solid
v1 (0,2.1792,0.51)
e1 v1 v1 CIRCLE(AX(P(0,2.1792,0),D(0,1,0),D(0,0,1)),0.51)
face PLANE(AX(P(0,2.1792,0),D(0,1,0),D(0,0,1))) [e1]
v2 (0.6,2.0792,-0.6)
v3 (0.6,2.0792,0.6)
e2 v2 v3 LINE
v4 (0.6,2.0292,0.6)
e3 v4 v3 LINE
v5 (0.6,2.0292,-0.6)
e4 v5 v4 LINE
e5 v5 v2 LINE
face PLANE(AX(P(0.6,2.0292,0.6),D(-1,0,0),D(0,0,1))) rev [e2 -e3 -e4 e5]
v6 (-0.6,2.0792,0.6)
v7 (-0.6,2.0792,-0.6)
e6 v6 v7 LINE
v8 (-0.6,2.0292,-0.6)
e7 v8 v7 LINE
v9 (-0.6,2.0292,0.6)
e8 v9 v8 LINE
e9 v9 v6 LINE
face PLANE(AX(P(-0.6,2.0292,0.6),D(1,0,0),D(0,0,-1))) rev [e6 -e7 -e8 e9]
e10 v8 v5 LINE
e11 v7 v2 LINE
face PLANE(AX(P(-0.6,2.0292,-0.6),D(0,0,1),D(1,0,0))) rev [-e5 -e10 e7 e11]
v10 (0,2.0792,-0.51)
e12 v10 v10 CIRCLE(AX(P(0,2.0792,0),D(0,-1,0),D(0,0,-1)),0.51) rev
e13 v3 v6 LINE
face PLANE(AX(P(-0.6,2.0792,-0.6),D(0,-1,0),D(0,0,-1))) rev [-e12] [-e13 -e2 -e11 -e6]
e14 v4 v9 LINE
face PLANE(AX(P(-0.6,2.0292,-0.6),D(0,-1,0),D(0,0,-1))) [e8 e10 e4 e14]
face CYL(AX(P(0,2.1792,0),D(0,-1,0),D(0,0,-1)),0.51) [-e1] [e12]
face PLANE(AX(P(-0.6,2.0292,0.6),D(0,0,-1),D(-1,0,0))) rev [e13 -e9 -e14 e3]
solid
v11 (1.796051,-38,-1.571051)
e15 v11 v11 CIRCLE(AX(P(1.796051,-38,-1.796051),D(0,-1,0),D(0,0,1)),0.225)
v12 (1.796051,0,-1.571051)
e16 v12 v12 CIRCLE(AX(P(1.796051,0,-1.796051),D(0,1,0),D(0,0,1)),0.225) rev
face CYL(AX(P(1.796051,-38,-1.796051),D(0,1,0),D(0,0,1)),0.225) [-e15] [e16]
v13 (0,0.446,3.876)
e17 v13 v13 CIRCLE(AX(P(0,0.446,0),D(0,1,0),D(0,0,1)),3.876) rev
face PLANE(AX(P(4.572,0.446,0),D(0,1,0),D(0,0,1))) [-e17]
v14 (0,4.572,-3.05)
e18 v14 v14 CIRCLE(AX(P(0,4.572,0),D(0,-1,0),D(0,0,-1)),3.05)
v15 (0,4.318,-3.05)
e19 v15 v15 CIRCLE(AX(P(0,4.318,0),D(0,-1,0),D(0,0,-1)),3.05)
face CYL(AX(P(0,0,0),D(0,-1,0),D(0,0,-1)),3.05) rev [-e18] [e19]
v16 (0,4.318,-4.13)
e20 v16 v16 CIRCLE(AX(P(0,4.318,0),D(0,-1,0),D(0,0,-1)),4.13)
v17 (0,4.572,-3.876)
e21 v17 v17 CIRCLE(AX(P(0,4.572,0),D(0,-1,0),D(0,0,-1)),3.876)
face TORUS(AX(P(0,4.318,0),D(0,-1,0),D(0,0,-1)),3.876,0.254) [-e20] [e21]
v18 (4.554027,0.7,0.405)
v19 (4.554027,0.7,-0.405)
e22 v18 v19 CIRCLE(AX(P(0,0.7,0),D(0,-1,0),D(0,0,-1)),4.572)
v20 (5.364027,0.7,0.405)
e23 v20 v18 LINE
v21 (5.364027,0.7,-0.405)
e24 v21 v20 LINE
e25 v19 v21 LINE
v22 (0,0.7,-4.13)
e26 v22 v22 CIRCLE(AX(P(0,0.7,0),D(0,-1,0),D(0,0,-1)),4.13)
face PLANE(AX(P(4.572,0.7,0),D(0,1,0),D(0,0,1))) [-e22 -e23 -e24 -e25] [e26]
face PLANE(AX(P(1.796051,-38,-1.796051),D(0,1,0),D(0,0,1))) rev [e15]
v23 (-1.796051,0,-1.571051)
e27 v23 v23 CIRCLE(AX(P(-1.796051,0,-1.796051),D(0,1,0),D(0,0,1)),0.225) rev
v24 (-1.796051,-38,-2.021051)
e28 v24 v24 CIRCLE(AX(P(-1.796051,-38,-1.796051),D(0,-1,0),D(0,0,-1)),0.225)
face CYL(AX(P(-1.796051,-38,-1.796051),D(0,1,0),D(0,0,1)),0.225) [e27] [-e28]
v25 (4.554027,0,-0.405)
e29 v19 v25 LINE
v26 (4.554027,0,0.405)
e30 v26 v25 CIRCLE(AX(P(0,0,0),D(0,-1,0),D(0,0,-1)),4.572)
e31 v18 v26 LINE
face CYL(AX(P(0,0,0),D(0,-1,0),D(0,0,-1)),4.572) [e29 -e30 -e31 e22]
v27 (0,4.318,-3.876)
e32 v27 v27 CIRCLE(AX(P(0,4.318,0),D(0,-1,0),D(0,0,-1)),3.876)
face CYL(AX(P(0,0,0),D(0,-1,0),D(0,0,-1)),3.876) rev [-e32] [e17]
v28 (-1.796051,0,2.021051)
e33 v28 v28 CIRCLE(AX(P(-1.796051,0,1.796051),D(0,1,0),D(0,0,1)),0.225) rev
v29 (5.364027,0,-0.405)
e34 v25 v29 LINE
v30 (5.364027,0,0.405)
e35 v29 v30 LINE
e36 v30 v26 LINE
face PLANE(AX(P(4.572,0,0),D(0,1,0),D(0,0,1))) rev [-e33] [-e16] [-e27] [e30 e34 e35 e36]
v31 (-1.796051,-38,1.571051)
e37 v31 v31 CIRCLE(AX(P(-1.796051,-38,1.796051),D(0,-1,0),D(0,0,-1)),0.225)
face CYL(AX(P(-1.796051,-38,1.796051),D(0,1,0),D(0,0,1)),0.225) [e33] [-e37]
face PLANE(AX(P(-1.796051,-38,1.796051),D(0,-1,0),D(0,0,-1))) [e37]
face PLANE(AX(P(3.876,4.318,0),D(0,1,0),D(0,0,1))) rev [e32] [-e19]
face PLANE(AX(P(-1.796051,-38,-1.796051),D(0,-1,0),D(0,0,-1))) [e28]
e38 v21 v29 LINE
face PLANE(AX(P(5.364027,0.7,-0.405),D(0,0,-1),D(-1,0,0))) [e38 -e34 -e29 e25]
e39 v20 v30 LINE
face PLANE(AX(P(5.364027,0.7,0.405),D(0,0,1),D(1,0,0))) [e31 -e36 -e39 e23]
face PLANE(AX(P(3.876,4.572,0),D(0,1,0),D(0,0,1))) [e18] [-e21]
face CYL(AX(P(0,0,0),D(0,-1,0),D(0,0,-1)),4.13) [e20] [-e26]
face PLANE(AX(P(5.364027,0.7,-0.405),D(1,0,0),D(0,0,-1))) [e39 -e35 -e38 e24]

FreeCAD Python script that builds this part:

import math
import FreeCAD as App
import Part
import Sketcher

V = App.Vector
Q = App.Units.Quantity

doc = App.newDocument("Part")
body = doc.addObject("PartDesign::Body", "Body")

# Sketch on XY plane
sketch1 = body.newObject("Sketcher::SketchObject", "Sketch")
sketch1.AttachmentSupport = (doc.getObject("XY_Plane"), [""])
sketch1.MapMode = "FlatFace"
sketch1.addGeometry(Part.LineSegment(V(4.57, 0, 0), V(4.57, 0.7, 0)), False)
sketch1.addGeometry(Part.LineSegment(V(4.57, 0.7, 0), V(4.13, 0.7, 0)), False)
sketch1.addGeometry(Part.LineSegment(V(4.13, 0.7, 0), V(4.13, 4.32, 0)), False)
sketch1.addGeometry(Part.ArcOfCircle(Part.Circle(V(3.88, 4.32, 0), V(0, 0, 1), 0.25), math.radians(0), math.radians(90)), False)
sketch1.addGeometry(Part.LineSegment(V(3.88, 4.57, 0), V(3.05, 4.57, 0)), False)
sketch1.addGeometry(Part.LineSegment(V(3.05, 4.57, 0), V(3.05, 4.32, 0)), False)
sketch1.addGeometry(Part.LineSegment(V(3.05, 4.32, 0), V(3.88, 4.32, 0)), False)
sketch1.addGeometry(Part.LineSegment(V(3.88, 4.32, 0), V(3.88, 0.45, 0)), False)
sketch1.addGeometry(Part.LineSegment(V(3.88, 0.45, 0), V(4.32, 0.45, 0)), False)
sketch1.addGeometry(Part.LineSegment(V(4.32, 0.45, 0), V(4.32, 0, 0)), False)
sketch1.addGeometry(Part.LineSegment(V(4.32, 0, 0), V(4.57, 0, 0)), False)
sketch1.addConstraint(Sketcher.Constraint("Coincident", 0, 2, 1, 1))
sketch1.addConstraint(Sketcher.Constraint("Coincident", 1, 2, 2, 1))
sketch1.addConstraint(Sketcher.Constraint("Tangent", 2, 2, 3, 1))
sketch1.addConstraint(Sketcher.Constraint("Tangent", 3, 2, 4, 1))
sketch1.addConstraint(Sketcher.Constraint("Coincident", 4, 2, 5, 1))
sketch1.addConstraint(Sketcher.Constraint("Coincident", 5, 2, 6, 1))
sketch1.addConstraint(Sketcher.Constraint("Coincident", 6, 2, 7, 1))
sketch1.addConstraint(Sketcher.Constraint("Coincident", 7, 2, 8, 1))
sketch1.addConstraint(Sketcher.Constraint("Coincident", 8, 2, 9, 1))
sketch1.addConstraint(Sketcher.Constraint("Coincident", 9, 2, 10, 1))
sketch1.addConstraint(Sketcher.Constraint("Coincident", 10, 2, 0, 1))
sketch1.addConstraint(Sketcher.Constraint("Vertical", 0))
sketch1.addConstraint(Sketcher.Constraint("Horizontal", 1))
sketch1.addConstraint(Sketcher.Constraint("Vertical", 2))
sketch1.addConstraint(Sketcher.Constraint("Horizontal", 4))
sketch1.addConstraint(Sketcher.Constraint("Vertical", 5))
sketch1.addConstraint(Sketcher.Constraint("Horizontal", 6))
sketch1.addConstraint(Sketcher.Constraint("Vertical", 7))
sketch1.addConstraint(Sketcher.Constraint("Horizontal", 8))
sketch1.addConstraint(Sketcher.Constraint("Vertical", 9))
sketch1.addConstraint(Sketcher.Constraint("Horizontal", 10))
sketch1.addConstraint(Sketcher.Constraint("Coincident", 6, 2, 3, 3))
sketch1.addConstraint(Sketcher.Constraint("PointOnObject", 9, 2, -1))
sketch1.addConstraint(Sketcher.Constraint("Equal", 1, 8))
sketch1.addConstraint(Sketcher.Constraint("DistanceY", 0, 1, 0, 2, Q("0.7 mm")))
sketch1.addConstraint(Sketcher.Constraint("Radius", 3, Q("0.254 mm")))
sketch1.addConstraint(Sketcher.Constraint("DistanceX", 1, 2, 1, 1, Q("0.442 mm")))
sketch1.addConstraint(Sketcher.Constraint("DistanceX", 4, 2, 4, 1, Q("0.826 mm")))
sketch1.addConstraint(Sketcher.Constraint("DistanceY", 2, 1, 2, 2, Q("3.618 mm")))
sketch1.addConstraint(Sketcher.Constraint("DistanceY", 7, 2, 7, 1, Q("3.872 mm")))
sketch1.addConstraint(Sketcher.Constraint("DistanceX", -1, 1, 1, 2, Q("4.13 mm")))
revolution = body.newObject("PartDesign::Revolution", "Revolution")
revolution.Profile = sketch1
revolution.ReferenceAxis = (sketch1, ["V_Axis"])
revolution.Angle = 360

# Sketch on XZ plane
sketch2 = body.newObject("Sketcher::SketchObject", "Sketch001")
sketch2.AttachmentSupport = (doc.getObject("XZ_Plane"), [""])
sketch2.MapMode = "FlatFace"
sketch2.addGeometry(Part.Circle(V(0, 0, 0), V(0, 0, 1), 4.6), False)
sketch2.addConstraint(Sketcher.Constraint("Coincident", 0, 3, -1, 1))
sketch2.addConstraint(Sketcher.Constraint("Diameter", 0, Q("9.144 mm")))
pad1 = body.newObject("PartDesign::Pad", "Pad")
pad1.Profile = sketch2
pad1.Length = 0.446
pad1.Reversed = True

# Sketch on XZ plane
sketch3 = body.newObject("Sketcher::SketchObject", "Sketch002")
sketch3.AttachmentSupport = (doc.getObject("XZ_Plane"), [""])
sketch3.MapMode = "FlatFace"
sketch3.addGeometry(Part.Circle(V(-1.8, -1.8, 0), V(0, 0, 1), 0.23), False)
sketch3.addGeometry(Part.Circle(V(1.8, -1.8, 0), V(0, 0, 1), 0.23), False)
sketch3.addGeometry(Part.Circle(V(-1.8, 1.8, 0), V(0, 0, 1), 0.23), False)
sketch3.addConstraint(Sketcher.Constraint("Equal", 0, 1))
sketch3.addConstraint(Sketcher.Constraint("Equal", 1, 2))
sketch3.addConstraint(Sketcher.Constraint("Symmetric", 1, 3, 2, 3, -1, 1))
sketch3.addConstraint(Sketcher.Constraint("Symmetric", 0, 3, 1, 3, -2))
sketch3.addConstraint(Sketcher.Constraint("Diameter", 0, Q("0.45 mm")))
sketch3.addConstraint(Sketcher.Constraint("DistanceX", 0, 3, -1, 1, Q("1.796051 mm")))
sketch3.addConstraint(Sketcher.Constraint("DistanceY", 0, 3, -1, 1, Q("1.796051 mm")))
pad2 = body.newObject("PartDesign::Pad", "Pad001")
pad2.Profile = sketch3
pad2.Length = 38

# Sketch on XZ plane
sketch4 = body.newObject("Sketcher::SketchObject", "Sketch003")
sketch4.AttachmentSupport = (doc.getObject("XZ_Plane"), [""])
sketch4.MapMode = "FlatFace"
sketch4.addGeometry(Part.LineSegment(V(4.6, 0.4, 0), V(4.6, -0.4, 0)), False)
sketch4.addGeometry(Part.LineSegment(V(4.6, -0.4, 0), V(5.4, -0.4, 0)), False)
sketch4.addGeometry(Part.LineSegment(V(5.4, -0.4, 0), V(5.4, 0.4, 0)), False)
sketch4.addGeometry(Part.LineSegment(V(5.4, 0.4, 0), V(4.6, 0.4, 0)), False)
sketch4.addConstraint(Sketcher.Constraint("Coincident", 0, 2, 1, 1))
sketch4.addConstraint(Sketcher.Constraint("Coincident", 1, 2, 2, 1))
sketch4.addConstraint(Sketcher.Constraint("Coincident", 2, 2, 3, 1))
sketch4.addConstraint(Sketcher.Constraint("Coincident", 3, 2, 0, 1))
sketch4.addConstraint(Sketcher.Constraint("Vertical", 0))
sketch4.addConstraint(Sketcher.Constraint("Horizontal", 1))
sketch4.addConstraint(Sketcher.Constraint("Vertical", 2))
sketch4.addConstraint(Sketcher.Constraint("Horizontal", 3))
sketch4.addConstraint(Sketcher.Constraint("Equal", 3, 0))
sketch4.addConstraint(Sketcher.Constraint("DistanceX", 1, 1, 1, 2, Q("0.81 mm")))
sketch4.addConstraint(Sketcher.Constraint("DistanceY", 0, 2, -1, 1, Q("0.405 mm")))
sketch4.addConstraint(Sketcher.Constraint("DistanceX", -1, 1, 0, 2, Q("4.554027 mm")))
pad3 = body.newObject("PartDesign::Pad", "Pad002")
pad3.Profile = sketch4
pad3.Length = 0.7
pad3.Reversed = True
body2 = doc.addObject("PartDesign::Body", "Body001")

# Sketch on XZ plane
sketch5 = body2.newObject("Sketcher::SketchObject", "Sketch004")
sketch5.AttachmentSupport = (doc.getObject("XZ_Plane001"), [""])
sketch5.MapMode = "FlatFace"
sketch5.AttachmentOffset = App.Placement(V(0, 0, -2.0792), App.Rotation())
sketch5.addGeometry(Part.LineSegment(V(-0.6, 0.6, 0), V(-0.6, -0.6, 0)), False)
sketch5.addGeometry(Part.LineSegment(V(-0.6, -0.6, 0), V(0.6, -0.6, 0)), False)
sketch5.addGeometry(Part.LineSegment(V(0.6, -0.6, 0), V(0.6, 0.6, 0)), False)
sketch5.addGeometry(Part.LineSegment(V(0.6, 0.6, 0), V(-0.6, 0.6, 0)), False)
sketch5.addConstraint(Sketcher.Constraint("Coincident", 0, 2, 1, 1))
sketch5.addConstraint(Sketcher.Constraint("Coincident", 1, 2, 2, 1))
sketch5.addConstraint(Sketcher.Constraint("Coincident", 2, 2, 3, 1))
sketch5.addConstraint(Sketcher.Constraint("Coincident", 3, 2, 0, 1))
sketch5.addConstraint(Sketcher.Constraint("Vertical", 0))
sketch5.addConstraint(Sketcher.Constraint("Horizontal", 1))
sketch5.addConstraint(Sketcher.Constraint("Vertical", 2))
sketch5.addConstraint(Sketcher.Constraint("Horizontal", 3))
sketch5.addConstraint(Sketcher.Constraint("Symmetric", 0, 2, 2, 2, -1, 1))
sketch5.addConstraint(Sketcher.Constraint("Equal", 3, 0))
sketch5.addConstraint(Sketcher.Constraint("DistanceX", 1, 1, 1, 2, Q("1.2 mm")))
pad4 = body2.newObject("PartDesign::Pad", "Pad003")
pad4.Profile = sketch5
pad4.Length = 0.05

# Sketch on XZ plane
sketch6 = body2.newObject("Sketcher::SketchObject", "Sketch005")
sketch6.AttachmentSupport = (doc.getObject("XZ_Plane001"), [""])
sketch6.MapMode = "FlatFace"
sketch6.AttachmentOffset = App.Placement(V(0, 0, -2.0792), App.Rotation())
sketch6.addGeometry(Part.Circle(V(0, 0, 0), V(0, 0, 1), 0.5), False)
sketch6.addConstraint(Sketcher.Constraint("Coincident", 0, 3, -1, 1))
sketch6.addConstraint(Sketcher.Constraint("Diameter", 0, Q("1.02 mm")))
pad5 = body2.newObject("PartDesign::Pad", "Pad004")
pad5.Profile = sketch6
pad5.Length = 0.1
pad5.Reversed = True

doc.recompute()
